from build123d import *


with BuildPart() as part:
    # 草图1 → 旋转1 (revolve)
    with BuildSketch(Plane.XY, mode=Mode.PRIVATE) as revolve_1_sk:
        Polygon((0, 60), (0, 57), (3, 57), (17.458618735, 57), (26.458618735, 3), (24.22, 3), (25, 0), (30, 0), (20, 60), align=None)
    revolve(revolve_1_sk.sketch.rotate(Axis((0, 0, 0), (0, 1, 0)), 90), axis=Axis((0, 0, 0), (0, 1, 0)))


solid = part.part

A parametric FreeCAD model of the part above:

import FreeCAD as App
import Part
import Sketcher

V = App.Vector
Q = App.Units.Quantity

doc = App.newDocument("Part")
params = doc.addObject("Spreadsheet::Sheet", "Params")
for row, (alias, value) in enumerate([
    ("sketch1_width", "5 mm"),
    ("sketch1_width2", "20 mm"),
    ("sketch1_height", "3 mm"),
    ("revolution_angle", "360 deg"),
], start=1):
    params.set(f"A{row}", alias)
    params.set(f"B{row}", "=" + value)
    params.setAlias(f"B{row}", alias)

body = doc.addObject("PartDesign::Body", "Body")

# Sketch on XY plane
sketch1 = body.newObject("Sketcher::SketchObject", "Sketch")
sketch1.AttachmentSupport = (doc.getObject("XY_Plane"), [""])
sketch1.MapMode = "FlatFace"
sketch1.addGeometry(Part.LineSegment(V(0, 60, 0), V(0, 57, 0)), False)
sketch1.addGeometry(Part.LineSegment(V(0, 57, 0), V(17.5, 57, 0)), False)
sketch1.addGeometry(Part.LineSegment(V(17.5, 57, 0), V(26.5, 3, 0)), False)
sketch1.addGeometry(Part.LineSegment(V(26.5, 3, 0), V(24.2, 3, 0)), False)
sketch1.addGeometry(Part.LineSegment(V(24.2, 3, 0), V(25, 0, 0)), False)
sketch1.addGeometry(Part.LineSegment(V(25, 0, 0), V(30, 0, 0)), False)
sketch1.addGeometry(Part.LineSegment(V(30, 0, 0), V(20, 60, 0)), False)
sketch1.addGeometry(Part.LineSegment(V(20, 60, 0), V(0, 60, 0)), False)
sketch1.addConstraint(Sketcher.Constraint("Coincident", 0, 2, 1, 1))
sketch1.addConstraint(Sketcher.Constraint("Coincident", 1, 2, 2, 1))
sketch1.addConstraint(Sketcher.Constraint("Coincident", 2, 2, 3, 1))
sketch1.addConstraint(Sketcher.Constraint("Coincident", 3, 2, 4, 1))
sketch1.addConstraint(Sketcher.Constraint("Coincident", 4, 2, 5, 1))
sketch1.addConstraint(Sketcher.Constraint("Coincident", 5, 2, 6, 1))
sketch1.addConstraint(Sketcher.Constraint("Coincident", 6, 2, 7, 1))
sketch1.addConstraint(Sketcher.Constraint("Coincident", 7, 2, 0, 1))
sketch1.addConstraint(Sketcher.Constraint("Vertical", 0))
sketch1.addConstraint(Sketcher.Constraint("Horizontal", 1))
sketch1.addConstraint(Sketcher.Constraint("Horizontal", 3))
sketch1.addConstraint(Sketcher.Constraint("Horizontal", 5))
sketch1.addConstraint(Sketcher.Constraint("Horizontal", 7))
sketch1.addConstraint(Sketcher.Constraint("PointOnObject", 0, 2, -2))
sketch1.addConstraint(Sketcher.Constraint("PointOnObject", 4, 2, -1))
sketch1.addConstraint(Sketcher.Constraint("Parallel", 2, 6))
sketch1.addConstraint(Sketcher.Constraint("DistanceX", 5, 1, 5, 2, Q("5 mm")))
sketch1.addConstraint(Sketcher.Constraint("DistanceX", 7, 2, 7, 1, Q("20 mm")))
sketch1.addConstraint(Sketcher.Constraint("DistanceY", 0, 2, 0, 1, Q("3 mm")))
sketch1.addConstraint(Sketcher.Constraint("DistanceY", -1, 1, 0, 2, Q("57 mm")))
sketch1.addConstraint(Sketcher.Constraint("DistanceY", -1, 1, 2, 2, Q("3 mm")))
sketch1.addConstraint(Sketcher.Constraint("DistanceX", -1, 1, 4, 2, Q("25 mm")))
sketch1.addConstraint(Sketcher.Constraint("DistanceX", -1, 1, 3, 2, Q("24.22 mm")))
sketch1.addConstraint(Sketcher.Constraint("DistanceX", 1, 1, 1, 2, Q("17.458619 mm")))
sketch1.setExpression("Constraints[16]", "Params.sketch1_width")
sketch1.setExpression("Constraints[17]", "Params.sketch1_width2")
sketch1.setExpression("Constraints[18]", "Params.sketch1_height")
revolution = body.newObject("PartDesign::Revolution", "Revolution")
revolution.Profile = sketch1
revolution.ReferenceAxis = (sketch1, ["V_Axis"])
revolution.setExpression("Angle", "Params.revolution_angle")

doc.recompute()
